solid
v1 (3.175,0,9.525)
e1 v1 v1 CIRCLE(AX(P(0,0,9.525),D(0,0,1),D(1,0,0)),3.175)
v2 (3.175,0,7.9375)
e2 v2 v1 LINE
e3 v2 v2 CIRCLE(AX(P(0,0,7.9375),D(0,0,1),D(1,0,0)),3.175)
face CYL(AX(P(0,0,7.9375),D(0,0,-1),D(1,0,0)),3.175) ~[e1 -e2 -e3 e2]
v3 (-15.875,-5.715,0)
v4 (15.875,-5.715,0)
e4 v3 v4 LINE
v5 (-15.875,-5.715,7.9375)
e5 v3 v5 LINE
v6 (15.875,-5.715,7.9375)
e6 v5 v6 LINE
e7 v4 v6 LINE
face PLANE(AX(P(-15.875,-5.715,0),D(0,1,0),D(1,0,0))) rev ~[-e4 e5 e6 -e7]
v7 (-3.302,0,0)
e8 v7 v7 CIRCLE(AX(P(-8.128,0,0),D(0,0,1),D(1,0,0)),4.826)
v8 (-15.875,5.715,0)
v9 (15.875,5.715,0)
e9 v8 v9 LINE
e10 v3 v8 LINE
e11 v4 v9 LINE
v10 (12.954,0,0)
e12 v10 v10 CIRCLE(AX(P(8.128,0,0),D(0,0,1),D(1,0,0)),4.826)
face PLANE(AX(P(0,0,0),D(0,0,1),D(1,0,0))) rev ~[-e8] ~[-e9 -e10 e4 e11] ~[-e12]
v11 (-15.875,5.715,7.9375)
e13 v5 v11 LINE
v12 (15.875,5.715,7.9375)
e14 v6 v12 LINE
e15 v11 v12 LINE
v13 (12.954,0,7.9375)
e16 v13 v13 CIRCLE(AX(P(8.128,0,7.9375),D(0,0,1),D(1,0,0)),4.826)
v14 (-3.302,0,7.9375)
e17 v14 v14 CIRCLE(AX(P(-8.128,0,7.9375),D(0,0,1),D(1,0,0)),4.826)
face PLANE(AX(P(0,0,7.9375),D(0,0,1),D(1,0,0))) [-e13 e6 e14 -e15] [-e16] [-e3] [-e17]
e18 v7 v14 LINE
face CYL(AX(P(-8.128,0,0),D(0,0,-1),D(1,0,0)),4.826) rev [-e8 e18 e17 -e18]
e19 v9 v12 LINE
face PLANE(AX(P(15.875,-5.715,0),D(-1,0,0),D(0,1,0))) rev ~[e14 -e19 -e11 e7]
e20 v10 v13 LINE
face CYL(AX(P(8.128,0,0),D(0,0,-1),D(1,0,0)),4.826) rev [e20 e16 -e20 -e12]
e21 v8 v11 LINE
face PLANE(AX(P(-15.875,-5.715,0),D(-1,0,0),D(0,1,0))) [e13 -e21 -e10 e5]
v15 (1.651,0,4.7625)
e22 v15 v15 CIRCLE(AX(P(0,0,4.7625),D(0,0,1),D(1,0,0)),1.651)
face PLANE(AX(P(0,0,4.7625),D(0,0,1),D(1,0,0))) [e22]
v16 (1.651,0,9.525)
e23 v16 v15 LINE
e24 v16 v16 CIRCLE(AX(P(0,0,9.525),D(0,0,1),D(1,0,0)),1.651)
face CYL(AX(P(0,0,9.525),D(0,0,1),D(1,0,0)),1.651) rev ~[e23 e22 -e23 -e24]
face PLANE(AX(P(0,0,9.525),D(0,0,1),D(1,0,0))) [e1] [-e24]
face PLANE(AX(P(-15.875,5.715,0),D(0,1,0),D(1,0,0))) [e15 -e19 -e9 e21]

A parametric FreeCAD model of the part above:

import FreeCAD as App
import Part
import Sketcher
from FreeCAD import Vector
Q = App.Units.Quantity


def add_polygon(sketch, points):
    """Adds a closed chain of lines whose ends are joined by coincident constraints."""
    first, n = sketch.GeometryCount, len(points)
    for a, b in zip(points, points[1:] + points[:1]):
        sketch.addGeometry(Part.LineSegment(App.Vector(*a, 0), App.Vector(*b, 0)), False)
    for i in range(n):
        sketch.addConstraint(Sketcher.Constraint("Coincident", first + i, 2, first + (i + 1) % n, 1))

doc = App.newDocument("Part")
body = doc.addObject("PartDesign::Body", "Body")

sketch1 = doc.addObject("Sketcher::SketchObject", "Sketch")
body.addObject(sketch1)
sketch1.AttachmentSupport = (doc.XY_Plane, [""])
sketch1.MapMode = "FlatFace"
add_polygon(sketch1, [(-15.875, 5.715), (-15.875, -5.715), (15.875, -5.715), (15.875, 5.715)])
sketch1.addGeometry(Part.Circle(Vector(-8.128, 0, 0), Vector(0, 0, 1), 4.826), False)
sketch1.addGeometry(Part.Circle(Vector(8.128, 0, 0), Vector(0, 0, 1), 4.826), False)
sketch1.addConstraint([
    Sketcher.Constraint("Vertical", 0),
    Sketcher.Constraint("Horizontal", 1),
    Sketcher.Constraint("Vertical", 2),
    Sketcher.Constraint("Horizontal", 3),
    Sketcher.Constraint("Equal", 4, 5),
    Sketcher.Constraint("Symmetric", 4, 3, 5, 3, -1, 1),
    Sketcher.Constraint("Symmetric", 0, 2, 2, 2, -1, 1),
    Sketcher.Constraint("PointOnObject", 4, 3, -1),
    Sketcher.Constraint("Diameter", 4, Q("0.38 in")),
    Sketcher.Constraint("DistanceX", 1, 1, 1, 2, Q("1.25 in")),
    Sketcher.Constraint("DistanceY", 0, 2, 0, 1, Q("0.45 in")),
    Sketcher.Constraint("DistanceX", 4, 3, -1, 1, Q("0.32 in")),
])
pad1 = doc.addObject("PartDesign::Pad", "Pad")
body.addObject(pad1)
pad1.Profile = sketch1
pad1.Length = Q("0.3125 in")

sketch2 = doc.addObject("Sketcher::SketchObject", "Sketch001")
body.addObject(sketch2)
sketch2.AttachmentSupport = (doc.XY_Plane, [""])
sketch2.MapMode = "FlatFace"
sketch2.AttachmentOffset = App.Placement(Vector(0, 0, 0.3125 * 25.4), App.Rotation())
sketch2.addGeometry(Part.Circle(Vector(0, 0, 0), Vector(0, 0, 1), 3.175), False)
sketch2.addConstraint([
    Sketcher.Constraint("Coincident", 0, 3, -1, 1),
    Sketcher.Constraint("Diameter", 0, Q("0.25 in")),
])
pad2 = doc.addObject("PartDesign::Pad", "Pad001")
body.addObject(pad2)
pad2.Profile = sketch2
pad2.Length = Q("0.0625 in")

sketch3 = doc.addObject("Sketcher::SketchObject", "Sketch002")
body.addObject(sketch3)
sketch3.AttachmentSupport = (doc.XY_Plane, [""])
sketch3.MapMode = "FlatFace"
sketch3.AttachmentOffset = App.Placement(Vector(0, 0, 0.375 * 25.4), App.Rotation())
sketch3.addGeometry(Part.Circle(Vector(0, 0, 0), Vector(0, 0, 1), 1.651), False)
sketch3.addConstraint([
    Sketcher.Constraint("Coincident", 0, 3, -1, 1),
    Sketcher.Constraint("Diameter", 0, Q("0.13 in")),
])
pocket1 = doc.addObject("PartDesign::Pocket", "Pocket")
body.addObject(pocket1)
pocket1.Profile = sketch3
pocket1.Length = Q("0.1875 in")

doc.recompute()
